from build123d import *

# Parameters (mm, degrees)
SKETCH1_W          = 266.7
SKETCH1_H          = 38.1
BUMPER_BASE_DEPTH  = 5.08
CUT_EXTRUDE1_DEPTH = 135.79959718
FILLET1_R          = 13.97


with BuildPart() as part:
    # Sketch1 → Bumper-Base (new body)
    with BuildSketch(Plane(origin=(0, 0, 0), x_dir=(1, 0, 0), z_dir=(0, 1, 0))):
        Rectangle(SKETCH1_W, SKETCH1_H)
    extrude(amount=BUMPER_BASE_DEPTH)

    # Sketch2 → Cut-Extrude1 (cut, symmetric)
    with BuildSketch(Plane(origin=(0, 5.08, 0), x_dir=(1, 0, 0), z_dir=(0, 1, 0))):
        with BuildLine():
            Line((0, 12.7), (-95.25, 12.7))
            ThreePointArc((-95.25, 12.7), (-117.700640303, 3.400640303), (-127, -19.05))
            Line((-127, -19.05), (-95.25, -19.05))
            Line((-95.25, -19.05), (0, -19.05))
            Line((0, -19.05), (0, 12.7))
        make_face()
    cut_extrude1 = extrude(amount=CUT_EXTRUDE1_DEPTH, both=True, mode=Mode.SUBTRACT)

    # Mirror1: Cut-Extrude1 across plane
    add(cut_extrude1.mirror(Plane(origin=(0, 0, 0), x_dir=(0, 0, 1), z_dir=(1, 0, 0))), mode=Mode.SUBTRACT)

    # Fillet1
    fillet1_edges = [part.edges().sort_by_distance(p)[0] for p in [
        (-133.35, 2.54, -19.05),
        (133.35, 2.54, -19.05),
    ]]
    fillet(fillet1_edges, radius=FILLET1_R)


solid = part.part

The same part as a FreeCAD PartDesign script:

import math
import FreeCAD as App
import Part
import Sketcher
from FreeCAD import Vector
Q = App.Units.Quantity


def edges_at(feature, points):
    """Names of the edges that pass closest to the given points."""
    edges = feature.Shape.Edges
    near = lambda p: min(range(len(edges)), key=lambda i: edges[i].distToShape(Part.Vertex(*p))[0])
    return sorted({f"Edge{near(p) + 1}" for p in points})

doc = App.newDocument("Part")
params = doc.addObject("Spreadsheet::Sheet", "Params")
for row, (alias, value) in enumerate([
    ("sketch1_width", "10.5 in"),
    ("sketch1_height", "1.5 in"),
    ("pad1_length", "0.2 in"),
    ("sketch2_width", "5 in"),
    ("sketch2_radius", "1.25 in"),
    ("sketch2_height", "1.25 in"),
    ("pocket1_length", "271.599194 mm"),
    ("fillet_radius", "0.55 in"),
], start=1):
    params.set(f"A{row}", alias)
    params.set(f"B{row}", "=" + value)
    params.setAlias(f"B{row}", alias)

body = doc.addObject("PartDesign::Body", "Body")

# Sketch on XZ plane
sketch1 = body.newObject("Sketcher::SketchObject", "Sketch")
sketch1.AttachmentSupport = (doc.getObject("XZ_Plane"), [""])
sketch1.MapMode = "FlatFace"
sketch1.addGeometry([
    Part.LineSegment(Vector(-133, -19, 0), Vector(-133, 19, 0)),
    Part.LineSegment(Vector(-133, 19, 0), Vector(133, 19, 0)),
    Part.LineSegment(Vector(133, 19, 0), Vector(133, -19, 0)),
    Part.LineSegment(Vector(133, -19, 0), Vector(-133, -19, 0)),
], False)
sketch1.addConstraint([
    Sketcher.Constraint("Coincident", 0, 2, 1, 1),
    Sketcher.Constraint("Coincident", 1, 2, 2, 1),
    Sketcher.Constraint("Coincident", 2, 2, 3, 1),
    Sketcher.Constraint("Coincident", 3, 2, 0, 1),
    Sketcher.Constraint("Vertical", 0),
    Sketcher.Constraint("Horizontal", 1),
    Sketcher.Constraint("Vertical", 2),
    Sketcher.Constraint("Horizontal", 3),
    Sketcher.Constraint("Symmetric", 0, 2, 2, 2, -1, 1),
    Sketcher.Constraint("DistanceX", 1, 1, 1, 2, Q("10.5 in")),
    Sketcher.Constraint("DistanceY", 0, 1, 0, 2, Q("1.5 in")),
])
sketch1.setExpression("Constraints[9]", "Params.sketch1_width")
sketch1.setExpression("Constraints[10]", "Params.sketch1_height")
pad1 = body.newObject("PartDesign::Pad", "Pad")
pad1.Profile = sketch1
pad1.setExpression("Length", "Params.pad1_length")
pad1.Reversed = True

# Sketch on XZ plane
sketch2 = body.newObject("Sketcher::SketchObject", "Sketch001")
sketch2.AttachmentSupport = (doc.getObject("XZ_Plane"), [""])
sketch2.MapMode = "FlatFace"
sketch2.AttachmentOffset = App.Placement(Vector(0, 0, -0.2 * 25.4), App.Rotation())
sketch2.addGeometry([
    Part.LineSegment(Vector(0, -13, 0), Vector(-95, -13, 0)),
    Part.ArcOfCircle(Part.Circle(Vector(-95, 19, 0), Vector(0, 0, 1), 32), math.radians(180), math.radians(270)),
    Part.LineSegment(Vector(-127, 19, 0), Vector(0, 19, 0)),
    Part.LineSegment(Vector(0, 19, 0), Vector(0, -13, 0)),
], False)
sketch2.addConstraint([
    Sketcher.Constraint("Tangent", 0, 2, 1, 2),
    Sketcher.Constraint("Coincident", 1, 1, 2, 1),
    Sketcher.Constraint("Coincident", 2, 2, 3, 1),
    Sketcher.Constraint("Coincident", 3, 2, 0, 1),
    Sketcher.Constraint("Horizontal", 0),
    Sketcher.Constraint("Horizontal", 2),
    Sketcher.Constraint("Vertical", 3),
    Sketcher.Constraint("PointOnObject", 2, 2, -2),
    Sketcher.Constraint("DistanceX", 2, 1, 2, 2, Q("5 in")),
    Sketcher.Constraint("Radius", 1, Q("1.25 in")),
    Sketcher.Constraint("DistanceY", 3, 2, 3, 1, Q("1.25 in")),
    Sketcher.Constraint("DistanceY", 0, 2, -1, 1, Q("0.5 in")),
])
sketch2.setExpression("Constraints[8]", "Params.sketch2_width")
sketch2.setExpression("Constraints[9]", "Params.sketch2_radius")
sketch2.setExpression("Constraints[10]", "Params.sketch2_height")
pocket1 = body.newObject("PartDesign::Pocket", "Pocket")
pocket1.Profile = sketch2
pocket1.setExpression("Length", "Params.pocket1_length")
pocket1.Midplane = True
doc.recompute()

mirrored = body.newObject("PartDesign::Mirrored", "Mirrored")
mirrored.Originals = [pocket1]
mirrored.MirrorPlane = (doc.getObject("YZ_Plane"), [""])
body.Tip = mirrored
doc.recompute()

fillet = body.newObject("PartDesign::Fillet", "Fillet")
fillet.Base = (mirrored, edges_at(mirrored, [(-133.35, 2.54, -19.05), (133.35, 2.54, -19.05)]))
fillet.setExpression("Radius", "Params.fillet_radius")

doc.recompute()
